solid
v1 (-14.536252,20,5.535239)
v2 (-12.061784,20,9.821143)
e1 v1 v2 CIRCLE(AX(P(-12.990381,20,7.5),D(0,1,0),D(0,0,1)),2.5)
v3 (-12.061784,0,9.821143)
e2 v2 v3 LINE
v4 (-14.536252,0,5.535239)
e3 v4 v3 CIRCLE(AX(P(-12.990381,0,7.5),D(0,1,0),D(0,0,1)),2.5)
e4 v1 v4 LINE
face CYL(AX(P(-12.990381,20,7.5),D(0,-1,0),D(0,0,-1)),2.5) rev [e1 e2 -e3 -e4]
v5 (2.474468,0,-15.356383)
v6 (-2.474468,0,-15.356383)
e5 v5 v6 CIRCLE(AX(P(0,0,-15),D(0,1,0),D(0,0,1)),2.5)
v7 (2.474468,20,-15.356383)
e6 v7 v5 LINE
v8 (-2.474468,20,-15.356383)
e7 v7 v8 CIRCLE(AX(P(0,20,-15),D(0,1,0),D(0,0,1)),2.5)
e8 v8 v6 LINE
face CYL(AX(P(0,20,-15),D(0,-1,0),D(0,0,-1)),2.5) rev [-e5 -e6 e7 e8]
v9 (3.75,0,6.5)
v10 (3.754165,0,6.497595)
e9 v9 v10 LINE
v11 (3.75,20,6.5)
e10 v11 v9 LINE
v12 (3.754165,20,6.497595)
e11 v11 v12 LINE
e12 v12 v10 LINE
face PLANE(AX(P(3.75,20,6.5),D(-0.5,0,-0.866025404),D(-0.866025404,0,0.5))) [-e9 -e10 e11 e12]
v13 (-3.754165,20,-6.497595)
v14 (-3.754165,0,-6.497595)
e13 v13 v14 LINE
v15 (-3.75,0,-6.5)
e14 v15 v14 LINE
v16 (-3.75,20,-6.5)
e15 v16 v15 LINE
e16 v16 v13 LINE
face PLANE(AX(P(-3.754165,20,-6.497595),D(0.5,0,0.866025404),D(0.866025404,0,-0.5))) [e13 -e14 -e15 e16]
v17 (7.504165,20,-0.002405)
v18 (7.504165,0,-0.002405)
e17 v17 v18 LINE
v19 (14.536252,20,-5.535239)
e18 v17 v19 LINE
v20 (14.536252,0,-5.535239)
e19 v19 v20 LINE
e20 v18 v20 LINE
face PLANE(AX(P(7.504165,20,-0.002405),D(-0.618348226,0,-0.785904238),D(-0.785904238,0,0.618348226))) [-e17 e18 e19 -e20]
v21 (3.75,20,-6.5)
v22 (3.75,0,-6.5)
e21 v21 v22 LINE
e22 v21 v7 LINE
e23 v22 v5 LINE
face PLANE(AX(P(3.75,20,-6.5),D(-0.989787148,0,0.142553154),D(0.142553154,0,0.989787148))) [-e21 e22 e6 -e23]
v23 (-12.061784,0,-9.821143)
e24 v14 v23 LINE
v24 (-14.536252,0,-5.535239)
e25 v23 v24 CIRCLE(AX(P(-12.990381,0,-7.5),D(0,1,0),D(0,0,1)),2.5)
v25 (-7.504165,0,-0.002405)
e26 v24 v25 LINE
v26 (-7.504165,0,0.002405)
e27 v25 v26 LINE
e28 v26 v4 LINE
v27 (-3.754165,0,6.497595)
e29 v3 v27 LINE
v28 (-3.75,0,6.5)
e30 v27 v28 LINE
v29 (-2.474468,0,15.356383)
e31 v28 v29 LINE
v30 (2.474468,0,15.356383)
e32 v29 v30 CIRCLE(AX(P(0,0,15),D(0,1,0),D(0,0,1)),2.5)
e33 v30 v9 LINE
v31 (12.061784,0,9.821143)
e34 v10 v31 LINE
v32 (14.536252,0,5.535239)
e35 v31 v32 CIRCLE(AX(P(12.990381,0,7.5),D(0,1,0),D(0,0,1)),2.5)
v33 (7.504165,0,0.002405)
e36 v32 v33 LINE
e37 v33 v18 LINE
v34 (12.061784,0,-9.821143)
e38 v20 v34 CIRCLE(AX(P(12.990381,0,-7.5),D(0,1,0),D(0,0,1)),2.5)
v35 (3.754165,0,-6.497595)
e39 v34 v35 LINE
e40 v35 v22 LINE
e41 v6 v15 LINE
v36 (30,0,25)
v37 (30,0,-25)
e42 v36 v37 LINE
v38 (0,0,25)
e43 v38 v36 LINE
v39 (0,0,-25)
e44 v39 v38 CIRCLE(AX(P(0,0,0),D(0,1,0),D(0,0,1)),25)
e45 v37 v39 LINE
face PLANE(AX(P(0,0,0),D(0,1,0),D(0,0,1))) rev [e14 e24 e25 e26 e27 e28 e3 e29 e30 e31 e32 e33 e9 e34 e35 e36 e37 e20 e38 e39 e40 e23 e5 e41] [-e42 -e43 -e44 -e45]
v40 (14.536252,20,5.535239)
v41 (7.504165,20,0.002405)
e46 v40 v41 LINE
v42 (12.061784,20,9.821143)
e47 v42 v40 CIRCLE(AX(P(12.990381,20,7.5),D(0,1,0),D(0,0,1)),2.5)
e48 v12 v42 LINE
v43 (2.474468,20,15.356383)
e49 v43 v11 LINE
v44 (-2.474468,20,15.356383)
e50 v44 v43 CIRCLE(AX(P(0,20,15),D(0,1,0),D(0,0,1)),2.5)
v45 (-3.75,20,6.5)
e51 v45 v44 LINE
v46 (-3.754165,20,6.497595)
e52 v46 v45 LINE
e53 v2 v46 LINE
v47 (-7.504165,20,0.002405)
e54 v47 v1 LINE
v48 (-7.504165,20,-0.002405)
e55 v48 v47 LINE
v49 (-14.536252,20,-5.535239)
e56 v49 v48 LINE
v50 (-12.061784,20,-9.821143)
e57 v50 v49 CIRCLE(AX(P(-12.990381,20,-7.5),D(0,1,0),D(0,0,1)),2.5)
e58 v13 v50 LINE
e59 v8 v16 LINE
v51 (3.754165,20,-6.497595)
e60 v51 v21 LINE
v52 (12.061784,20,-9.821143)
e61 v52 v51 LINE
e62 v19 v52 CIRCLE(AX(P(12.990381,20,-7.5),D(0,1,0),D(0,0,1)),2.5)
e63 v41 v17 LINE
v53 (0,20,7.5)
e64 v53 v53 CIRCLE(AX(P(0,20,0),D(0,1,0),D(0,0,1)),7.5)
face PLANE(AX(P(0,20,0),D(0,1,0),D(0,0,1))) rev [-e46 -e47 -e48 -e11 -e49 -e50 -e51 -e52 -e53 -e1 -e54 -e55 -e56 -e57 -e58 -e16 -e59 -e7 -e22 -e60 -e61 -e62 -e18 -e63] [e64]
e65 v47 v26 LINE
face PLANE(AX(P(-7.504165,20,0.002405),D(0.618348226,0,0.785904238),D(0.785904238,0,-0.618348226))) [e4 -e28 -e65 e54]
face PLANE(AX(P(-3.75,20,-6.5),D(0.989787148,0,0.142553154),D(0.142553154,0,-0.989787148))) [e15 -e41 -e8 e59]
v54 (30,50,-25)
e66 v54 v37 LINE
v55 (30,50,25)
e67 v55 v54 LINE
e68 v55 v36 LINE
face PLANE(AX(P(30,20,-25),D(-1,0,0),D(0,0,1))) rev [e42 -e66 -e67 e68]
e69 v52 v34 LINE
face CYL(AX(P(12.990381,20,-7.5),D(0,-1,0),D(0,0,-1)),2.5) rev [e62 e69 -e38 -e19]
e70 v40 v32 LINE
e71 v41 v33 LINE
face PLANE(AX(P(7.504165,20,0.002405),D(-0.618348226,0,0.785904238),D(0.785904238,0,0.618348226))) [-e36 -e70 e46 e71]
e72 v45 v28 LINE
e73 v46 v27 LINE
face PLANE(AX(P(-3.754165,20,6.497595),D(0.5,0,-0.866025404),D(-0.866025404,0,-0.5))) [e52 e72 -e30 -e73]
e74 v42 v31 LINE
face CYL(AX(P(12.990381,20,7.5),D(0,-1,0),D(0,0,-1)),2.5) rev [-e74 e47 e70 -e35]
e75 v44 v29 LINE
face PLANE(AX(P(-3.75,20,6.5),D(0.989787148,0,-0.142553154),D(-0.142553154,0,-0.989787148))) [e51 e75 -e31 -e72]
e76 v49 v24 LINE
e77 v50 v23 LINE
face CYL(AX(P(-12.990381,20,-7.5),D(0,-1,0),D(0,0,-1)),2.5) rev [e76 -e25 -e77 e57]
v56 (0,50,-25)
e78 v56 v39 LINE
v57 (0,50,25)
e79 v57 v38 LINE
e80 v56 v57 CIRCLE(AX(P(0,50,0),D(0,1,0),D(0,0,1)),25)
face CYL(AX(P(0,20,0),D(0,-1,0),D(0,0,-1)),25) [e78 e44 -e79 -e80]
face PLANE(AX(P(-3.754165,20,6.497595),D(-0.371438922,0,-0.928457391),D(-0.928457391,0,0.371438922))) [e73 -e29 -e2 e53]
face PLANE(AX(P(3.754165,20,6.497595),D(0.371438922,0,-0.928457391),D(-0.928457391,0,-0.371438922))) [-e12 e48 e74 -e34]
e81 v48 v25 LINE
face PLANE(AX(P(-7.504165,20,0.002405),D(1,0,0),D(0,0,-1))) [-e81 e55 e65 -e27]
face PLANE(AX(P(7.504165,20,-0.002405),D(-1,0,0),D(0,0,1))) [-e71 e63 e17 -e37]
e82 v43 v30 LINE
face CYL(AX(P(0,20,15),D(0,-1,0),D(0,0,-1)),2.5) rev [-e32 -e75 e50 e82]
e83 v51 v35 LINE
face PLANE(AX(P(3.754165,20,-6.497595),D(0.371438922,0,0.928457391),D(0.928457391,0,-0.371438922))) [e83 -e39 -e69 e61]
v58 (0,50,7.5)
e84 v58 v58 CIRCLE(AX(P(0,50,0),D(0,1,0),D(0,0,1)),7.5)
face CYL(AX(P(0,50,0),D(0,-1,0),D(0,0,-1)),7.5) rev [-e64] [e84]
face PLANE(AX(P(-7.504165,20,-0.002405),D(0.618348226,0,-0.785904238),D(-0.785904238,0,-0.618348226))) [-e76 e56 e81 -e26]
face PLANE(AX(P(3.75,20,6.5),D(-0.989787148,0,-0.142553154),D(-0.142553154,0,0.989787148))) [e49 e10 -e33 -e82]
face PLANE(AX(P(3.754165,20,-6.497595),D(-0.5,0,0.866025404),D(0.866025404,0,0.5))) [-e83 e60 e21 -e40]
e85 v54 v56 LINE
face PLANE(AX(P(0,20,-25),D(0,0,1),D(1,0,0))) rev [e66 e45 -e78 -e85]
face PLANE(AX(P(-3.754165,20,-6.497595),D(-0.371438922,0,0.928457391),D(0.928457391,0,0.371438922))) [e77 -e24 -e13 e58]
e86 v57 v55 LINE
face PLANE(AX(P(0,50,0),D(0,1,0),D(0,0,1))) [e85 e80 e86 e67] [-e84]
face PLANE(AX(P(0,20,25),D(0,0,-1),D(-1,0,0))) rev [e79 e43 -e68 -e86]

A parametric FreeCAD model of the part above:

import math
import FreeCAD as App
import Part
import Sketcher
from FreeCAD import Vector
Q = App.Units.Quantity

doc = App.newDocument("Part")
params = doc.addObject("Spreadsheet::Sheet", "Params")
for row, (alias, value) in enumerate([
    ("sketch1_radius", "25 mm"),
    ("sketch1_radius2", "2.5 mm"),
    ("sketch1_width", "30 mm"),
    ("pad1_length", "20 mm"),
    ("sketch2_diameter", "15 mm"),
    ("sketch2_radius", "25 mm"),
    ("sketch2_width", "30 mm"),
    ("pad2_length", "30 mm"),
], start=1):
    params.set(f"A{row}", alias)
    params.set(f"B{row}", "=" + value)
    params.setAlias(f"B{row}", alias)

body = doc.addObject("PartDesign::Body", "Body")

# Sketch on XZ plane
sketch1 = body.newObject("Sketcher::SketchObject", "Sketch")
sketch1.AttachmentSupport = (doc.getObject("XZ_Plane"), [""])
sketch1.MapMode = "FlatFace"
sketch1.addGeometry(Part.LineSegment(Vector(0, 25, 0), Vector(30, 25, 0)), False)
sketch1.addGeometry(Part.LineSegment(Vector(30, 25, 0), Vector(30, -25, 0)), False)
sketch1.addGeometry(Part.LineSegment(Vector(30, -25, 0), Vector(0, -25, 0)), False)
sketch1.addGeometry(Part.ArcOfCircle(Part.Circle(Vector(0, 0, 0), Vector(0, 0, 1), 25), math.radians(90), math.radians(270)), False)
sketch1.addGeometry(Part.LineSegment(Vector(2.4745, -15.3564, 0), Vector(3.75, -6.5, 0)), False)
sketch1.addGeometry(Part.LineSegment(Vector(3.75, -6.5, 0), Vector(3.7542, -6.4976, 0)), False)
sketch1.addGeometry(Part.LineSegment(Vector(3.7542, -6.4976, 0), Vector(12.0618, -9.8211, 0)), False)
sketch1.addGeometry(Part.ArcOfCircle(Part.Circle(Vector(12.9904, -7.5, 0), Vector(0, 0, 1), 2.5), math.radians(-112), math.radians(52)), False)
sketch1.addGeometry(Part.LineSegment(Vector(14.5363, -5.5352, 0), Vector(7.5042, -0.0024, 0)), False)
sketch1.addGeometry(Part.LineSegment(Vector(7.5042, -0.0024, 0), Vector(7.5042, 0.0024, 0)), False)
sketch1.addGeometry(Part.LineSegment(Vector(7.5042, 0.0024, 0), Vector(14.5363, 5.5352, 0)), False)
sketch1.addGeometry(Part.ArcOfCircle(Part.Circle(Vector(12.9904, 7.5, 0), Vector(0, 0, 1), 2.5), math.radians(-52), math.radians(112)), False)
sketch1.addGeometry(Part.LineSegment(Vector(12.0618, 9.8211, 0), Vector(3.7542, 6.4976, 0)), False)
sketch1.addGeometry(Part.LineSegment(Vector(3.7542, 6.4976, 0), Vector(3.75, 6.5, 0)), False)
sketch1.addGeometry(Part.LineSegment(Vector(3.75, 6.5, 0), Vector(2.4745, 15.3564, 0)), False)
sketch1.addGeometry(Part.ArcOfCircle(Part.Circle(Vector(0, 15, 0), Vector(0, 0, 1), 2.5), math.radians(8), math.radians(172)), False)
sketch1.addGeometry(Part.LineSegment(Vector(-2.4745, 15.3564, 0), Vector(-3.75, 6.5, 0)), False)
sketch1.addGeometry(Part.LineSegment(Vector(-3.75, 6.5, 0), Vector(-3.7542, 6.4976, 0)), False)
sketch1.addGeometry(Part.LineSegment(Vector(-3.7542, 6.4976, 0), Vector(-12.0618, 9.8211, 0)), False)
sketch1.addGeometry(Part.ArcOfCircle(Part.Circle(Vector(-12.9904, 7.5, 0), Vector(0, 0, 1), 2.5), math.radians(68), math.radians(232)), False)
sketch1.addGeometry(Part.LineSegment(Vector(-14.5363, 5.5352, 0), Vector(-7.5042, 0.0024, 0)), False)
sketch1.addGeometry(Part.LineSegment(Vector(-7.5042, 0.0024, 0), Vector(-7.5042, -0.0024, 0)), False)
sketch1.addGeometry(Part.LineSegment(Vector(-7.5042, -0.0024, 0), Vector(-14.5363, -5.5352, 0)), False)
sketch1.addGeometry(Part.ArcOfCircle(Part.Circle(Vector(-12.9904, -7.5, 0), Vector(0, 0, 1), 2.5), math.radians(128), math.radians(292)), False)
sketch1.addGeometry(Part.LineSegment(Vector(-12.0618, -9.8211, 0), Vector(-3.7542, -6.4976, 0)), False)
sketch1.addGeometry(Part.LineSegment(Vector(-3.7542, -6.4976, 0), Vector(-3.75, -6.5, 0)), False)
sketch1.addGeometry(Part.LineSegment(Vector(-3.75, -6.5, 0), Vector(-2.4745, -15.3564, 0)), False)
sketch1.addGeometry(Part.ArcOfCircle(Part.Circle(Vector(0, -15, 0), Vector(0, 0, 1), 2.5), math.radians(-172), math.radians(-8)), False)
sketch1.addConstraint(Sketcher.Constraint("Coincident", 0, 2, 1, 1))
sketch1.addConstraint(Sketcher.Constraint("Coincident", 1, 2, 2, 1))
sketch1.addConstraint(Sketcher.Constraint("Tangent", 2, 2, 3, 2))
sketch1.addConstraint(Sketcher.Constraint("Tangent", 3, 1, 0, 1))
sketch1.addConstraint(Sketcher.Constraint("Coincident", 4, 2, 5, 1))
sketch1.addConstraint(Sketcher.Constraint("Coincident", 5, 2, 6, 1))
sketch1.addConstraint(Sketcher.Constraint("Tangent", 6, 2, 7, 1))
sketch1.addConstraint(Sketcher.Constraint("Tangent", 7, 2, 8, 1))
sketch1.addConstraint(Sketcher.Constraint("Coincident", 8, 2, 9, 1))
sketch1.addConstraint(Sketcher.Constraint("Coincident", 9, 2, 10, 1))
sketch1.addConstraint(Sketcher.Constraint("Tangent", 10, 2, 11, 1))
sketch1.addConstraint(Sketcher.Constraint("Tangent", 11, 2, 12, 1))
sketch1.addConstraint(Sketcher.Constraint("Coincident", 12, 2, 13, 1))
sketch1.addConstraint(Sketcher.Constraint("Coincident", 13, 2, 14, 1))
sketch1.addConstraint(Sketcher.Constraint("Tangent", 14, 2, 15, 1))
sketch1.addConstraint(Sketcher.Constraint("Tangent", 15, 2, 16, 1))
sketch1.addConstraint(Sketcher.Constraint("Coincident", 16, 2, 17, 1))
sketch1.addConstraint(Sketcher.Constraint("Coincident", 17, 2, 18, 1))
sketch1.addConstraint(Sketcher.Constraint("Tangent", 18, 2, 19, 1))
sketch1.addConstraint(Sketcher.Constraint("Tangent", 19, 2, 20, 1))
sketch1.addConstraint(Sketcher.Constraint("Coincident", 20, 2, 21, 1))
sketch1.addConstraint(Sketcher.Constraint("Coincident", 21, 2, 22, 1))
sketch1.addConstraint(Sketcher.Constraint("Tangent", 22, 2, 23, 1))
sketch1.addConstraint(Sketcher.Constraint("Tangent", 23, 2, 24, 1))
sketch1.addConstraint(Sketcher.Constraint("Coincident", 24, 2, 25, 1))
sketch1.addConstraint(Sketcher.Constraint("Coincident", 25, 2, 26, 1))
sketch1.addConstraint(Sketcher.Constraint("Tangent", 26, 2, 27, 1))
sketch1.addConstraint(Sketcher.Constraint("Tangent", 27, 2, 4, 1))
sketch1.addConstraint(Sketcher.Constraint("Horizontal", 0))
sketch1.addConstraint(Sketcher.Constraint("Vertical", 1))
sketch1.addConstraint(Sketcher.Constraint("Horizontal", 2))
sketch1.addConstraint(Sketcher.Constraint("Vertical", 9))
sketch1.addConstraint(Sketcher.Constraint("Vertical", 21))
sketch1.addConstraint(Sketcher.Constraint("Coincident", 3, 3, -1, 1))
sketch1.addConstraint(Sketcher.Constraint("Equal", 7, 11))
sketch1.addConstraint(Sketcher.Constraint("Equal", 11, 15))
sketch1.addConstraint(Sketcher.Constraint("Equal", 15, 19))
sketch1.addConstraint(Sketcher.Constraint("Equal", 19, 23))
sketch1.addConstraint(Sketcher.Constraint("Equal", 23, 27))
sketch1.addConstraint(Sketcher.Constraint("Symmetric", 7, 3, 19, 3, -1, 1))
sketch1.addConstraint(Sketcher.Constraint("Symmetric", 11, 3, 23, 3, -1, 1))
sketch1.addConstraint(Sketcher.Constraint("Symmetric", 15, 3, 27, 3, -1, 1))
sketch1.addConstraint(Sketcher.Constraint("Symmetric", 4, 2, 16, 2, -1, 1))
sketch1.addConstraint(Sketcher.Constraint("Symmetric", 5, 2, 17, 2, -1, 1))
sketch1.addConstraint(Sketcher.Constraint("Symmetric", 8, 2, 20, 2, -1, 1))
sketch1.addConstraint(Sketcher.Constraint("Symmetric", 12, 2, 24, 2, -1, 1))
sketch1.addConstraint(Sketcher.Constraint("Symmetric", 13, 2, 25, 2, -1, 1))
sketch1.addConstraint(Sketcher.Constraint("Symmetric", 11, 3, 19, 3, -2))
sketch1.addConstraint(Sketcher.Constraint("Symmetric", 14, 2, 15, 2, -2))
sketch1.addConstraint(Sketcher.Constraint("Symmetric", 12, 2, 17, 2, -2))
sketch1.addConstraint(Sketcher.Constraint("Parallel", 10, 22))
sketch1.addConstraint(Sketcher.Constraint("Horizontal", 13, 2, 16, 2))
sketch1.addConstraint(Sketcher.Constraint("Horizontal", 10, 2, 19, 2))
sketch1.addConstraint(Sketcher.Constraint("Equal", 4, 6))
sketch1.addConstraint(Sketcher.Constraint("Equal", 6, 8))
sketch1.addConstraint(Sketcher.Constraint("Radius", 3, Q("25 mm")))
sketch1.addConstraint(Sketcher.Constraint("Radius", 7, Q("2.5 mm")))
sketch1.addConstraint(Sketcher.Constraint("DistanceX", 0, 1, 0, 2, Q("30 mm")))
sketch1.addConstraint(Sketcher.Constraint("Angle", 5, Q("30 deg")))
sketch1.addConstraint(Sketcher.Constraint("DistanceY", -1, 1, 15, 3, Q("15 mm")))
sketch1.addConstraint(Sketcher.Constraint("DistanceY", 7, 3, 11, 3, Q("15 mm")))
sketch1.addConstraint(Sketcher.Constraint("DistanceY", 7, 3, 4, 2, Q("1 mm")))
sketch1.addConstraint(Sketcher.Constraint("DistanceY", 5, 2, 9, 2, Q("6.5 mm")))
sketch1.addConstraint(Sketcher.Constraint("DistanceX", 16, 2, 13, 2, Q("7.5 mm")))
sketch1.addConstraint(Sketcher.Constraint("DistanceX", 5, 2, 8, 2, Q("3.75 mm")))
sketch1.setExpression("Constraints[55]", "Params.sketch1_radius")
sketch1.setExpression("Constraints[56]", "Params.sketch1_radius2")
sketch1.setExpression("Constraints[57]", "Params.sketch1_width")
pad1 = body.newObject("PartDesign::Pad", "Pad")
pad1.Profile = sketch1
pad1.setExpression("Length", "Params.pad1_length")
pad1.Reversed = True

# Sketch on XZ plane
sketch2 = body.newObject("Sketcher::SketchObject", "Sketch001")
sketch2.AttachmentSupport = (doc.getObject("XZ_Plane"), [""])
sketch2.MapMode = "FlatFace"
sketch2.AttachmentOffset = App.Placement(Vector(0, 0, -20), App.Rotation())
sketch2.addGeometry(Part.LineSegment(Vector(30, -25, 0), Vector(0, -25, 0)), False)
sketch2.addGeometry(Part.ArcOfCircle(Part.Circle(Vector(0, 0, 0), Vector(0, 0, 1), 25), math.radians(90), math.radians(270)), False)
sketch2.addGeometry(Part.LineSegment(Vector(0, 25, 0), Vector(30, 25, 0)), False)
sketch2.addGeometry(Part.LineSegment(Vector(30, 25, 0), Vector(30, -25, 0)), False)
sketch2.addGeometry(Part.Circle(Vector(0, 0, 0), Vector(0, 0, 1), 8), False)
sketch2.addConstraint(Sketcher.Constraint("Tangent", 0, 2, 1, 2))
sketch2.addConstraint(Sketcher.Constraint("Tangent", 1, 1, 2, 1))
sketch2.addConstraint(Sketcher.Constraint("Coincident", 2, 2, 3, 1))
sketch2.addConstraint(Sketcher.Constraint("Coincident", 3, 2, 0, 1))
sketch2.addConstraint(Sketcher.Constraint("Horizontal", 0))
sketch2.addConstraint(Sketcher.Constraint("Horizontal", 2))
sketch2.addConstraint(Sketcher.Constraint("Vertical", 3))
sketch2.addConstraint(Sketcher.Constraint("Coincident", 1, 3, -1, 1))
sketch2.addConstraint(Sketcher.Constraint("Coincident", 4, 3, -1, 1))
sketch2.addConstraint(Sketcher.Constraint("Diameter", 4, Q("15 mm")))
sketch2.addConstraint(Sketcher.Constraint("Radius", 1, Q("25 mm")))
sketch2.addConstraint(Sketcher.Constraint("DistanceX", 0, 2, 0, 1, Q("30 mm")))
sketch2.setExpression("Constraints[9]", "Params.sketch2_diameter")
sketch2.setExpression("Constraints[10]", "Params.sketch2_radius")
sketch2.setExpression("Constraints[11]", "Params.sketch2_width")
pad2 = body.newObject("PartDesign::Pad", "Pad001")
pad2.Profile = sketch2
pad2.setExpression("Length", "Params.pad2_length")
pad2.Reversed = True

doc.recompute()
